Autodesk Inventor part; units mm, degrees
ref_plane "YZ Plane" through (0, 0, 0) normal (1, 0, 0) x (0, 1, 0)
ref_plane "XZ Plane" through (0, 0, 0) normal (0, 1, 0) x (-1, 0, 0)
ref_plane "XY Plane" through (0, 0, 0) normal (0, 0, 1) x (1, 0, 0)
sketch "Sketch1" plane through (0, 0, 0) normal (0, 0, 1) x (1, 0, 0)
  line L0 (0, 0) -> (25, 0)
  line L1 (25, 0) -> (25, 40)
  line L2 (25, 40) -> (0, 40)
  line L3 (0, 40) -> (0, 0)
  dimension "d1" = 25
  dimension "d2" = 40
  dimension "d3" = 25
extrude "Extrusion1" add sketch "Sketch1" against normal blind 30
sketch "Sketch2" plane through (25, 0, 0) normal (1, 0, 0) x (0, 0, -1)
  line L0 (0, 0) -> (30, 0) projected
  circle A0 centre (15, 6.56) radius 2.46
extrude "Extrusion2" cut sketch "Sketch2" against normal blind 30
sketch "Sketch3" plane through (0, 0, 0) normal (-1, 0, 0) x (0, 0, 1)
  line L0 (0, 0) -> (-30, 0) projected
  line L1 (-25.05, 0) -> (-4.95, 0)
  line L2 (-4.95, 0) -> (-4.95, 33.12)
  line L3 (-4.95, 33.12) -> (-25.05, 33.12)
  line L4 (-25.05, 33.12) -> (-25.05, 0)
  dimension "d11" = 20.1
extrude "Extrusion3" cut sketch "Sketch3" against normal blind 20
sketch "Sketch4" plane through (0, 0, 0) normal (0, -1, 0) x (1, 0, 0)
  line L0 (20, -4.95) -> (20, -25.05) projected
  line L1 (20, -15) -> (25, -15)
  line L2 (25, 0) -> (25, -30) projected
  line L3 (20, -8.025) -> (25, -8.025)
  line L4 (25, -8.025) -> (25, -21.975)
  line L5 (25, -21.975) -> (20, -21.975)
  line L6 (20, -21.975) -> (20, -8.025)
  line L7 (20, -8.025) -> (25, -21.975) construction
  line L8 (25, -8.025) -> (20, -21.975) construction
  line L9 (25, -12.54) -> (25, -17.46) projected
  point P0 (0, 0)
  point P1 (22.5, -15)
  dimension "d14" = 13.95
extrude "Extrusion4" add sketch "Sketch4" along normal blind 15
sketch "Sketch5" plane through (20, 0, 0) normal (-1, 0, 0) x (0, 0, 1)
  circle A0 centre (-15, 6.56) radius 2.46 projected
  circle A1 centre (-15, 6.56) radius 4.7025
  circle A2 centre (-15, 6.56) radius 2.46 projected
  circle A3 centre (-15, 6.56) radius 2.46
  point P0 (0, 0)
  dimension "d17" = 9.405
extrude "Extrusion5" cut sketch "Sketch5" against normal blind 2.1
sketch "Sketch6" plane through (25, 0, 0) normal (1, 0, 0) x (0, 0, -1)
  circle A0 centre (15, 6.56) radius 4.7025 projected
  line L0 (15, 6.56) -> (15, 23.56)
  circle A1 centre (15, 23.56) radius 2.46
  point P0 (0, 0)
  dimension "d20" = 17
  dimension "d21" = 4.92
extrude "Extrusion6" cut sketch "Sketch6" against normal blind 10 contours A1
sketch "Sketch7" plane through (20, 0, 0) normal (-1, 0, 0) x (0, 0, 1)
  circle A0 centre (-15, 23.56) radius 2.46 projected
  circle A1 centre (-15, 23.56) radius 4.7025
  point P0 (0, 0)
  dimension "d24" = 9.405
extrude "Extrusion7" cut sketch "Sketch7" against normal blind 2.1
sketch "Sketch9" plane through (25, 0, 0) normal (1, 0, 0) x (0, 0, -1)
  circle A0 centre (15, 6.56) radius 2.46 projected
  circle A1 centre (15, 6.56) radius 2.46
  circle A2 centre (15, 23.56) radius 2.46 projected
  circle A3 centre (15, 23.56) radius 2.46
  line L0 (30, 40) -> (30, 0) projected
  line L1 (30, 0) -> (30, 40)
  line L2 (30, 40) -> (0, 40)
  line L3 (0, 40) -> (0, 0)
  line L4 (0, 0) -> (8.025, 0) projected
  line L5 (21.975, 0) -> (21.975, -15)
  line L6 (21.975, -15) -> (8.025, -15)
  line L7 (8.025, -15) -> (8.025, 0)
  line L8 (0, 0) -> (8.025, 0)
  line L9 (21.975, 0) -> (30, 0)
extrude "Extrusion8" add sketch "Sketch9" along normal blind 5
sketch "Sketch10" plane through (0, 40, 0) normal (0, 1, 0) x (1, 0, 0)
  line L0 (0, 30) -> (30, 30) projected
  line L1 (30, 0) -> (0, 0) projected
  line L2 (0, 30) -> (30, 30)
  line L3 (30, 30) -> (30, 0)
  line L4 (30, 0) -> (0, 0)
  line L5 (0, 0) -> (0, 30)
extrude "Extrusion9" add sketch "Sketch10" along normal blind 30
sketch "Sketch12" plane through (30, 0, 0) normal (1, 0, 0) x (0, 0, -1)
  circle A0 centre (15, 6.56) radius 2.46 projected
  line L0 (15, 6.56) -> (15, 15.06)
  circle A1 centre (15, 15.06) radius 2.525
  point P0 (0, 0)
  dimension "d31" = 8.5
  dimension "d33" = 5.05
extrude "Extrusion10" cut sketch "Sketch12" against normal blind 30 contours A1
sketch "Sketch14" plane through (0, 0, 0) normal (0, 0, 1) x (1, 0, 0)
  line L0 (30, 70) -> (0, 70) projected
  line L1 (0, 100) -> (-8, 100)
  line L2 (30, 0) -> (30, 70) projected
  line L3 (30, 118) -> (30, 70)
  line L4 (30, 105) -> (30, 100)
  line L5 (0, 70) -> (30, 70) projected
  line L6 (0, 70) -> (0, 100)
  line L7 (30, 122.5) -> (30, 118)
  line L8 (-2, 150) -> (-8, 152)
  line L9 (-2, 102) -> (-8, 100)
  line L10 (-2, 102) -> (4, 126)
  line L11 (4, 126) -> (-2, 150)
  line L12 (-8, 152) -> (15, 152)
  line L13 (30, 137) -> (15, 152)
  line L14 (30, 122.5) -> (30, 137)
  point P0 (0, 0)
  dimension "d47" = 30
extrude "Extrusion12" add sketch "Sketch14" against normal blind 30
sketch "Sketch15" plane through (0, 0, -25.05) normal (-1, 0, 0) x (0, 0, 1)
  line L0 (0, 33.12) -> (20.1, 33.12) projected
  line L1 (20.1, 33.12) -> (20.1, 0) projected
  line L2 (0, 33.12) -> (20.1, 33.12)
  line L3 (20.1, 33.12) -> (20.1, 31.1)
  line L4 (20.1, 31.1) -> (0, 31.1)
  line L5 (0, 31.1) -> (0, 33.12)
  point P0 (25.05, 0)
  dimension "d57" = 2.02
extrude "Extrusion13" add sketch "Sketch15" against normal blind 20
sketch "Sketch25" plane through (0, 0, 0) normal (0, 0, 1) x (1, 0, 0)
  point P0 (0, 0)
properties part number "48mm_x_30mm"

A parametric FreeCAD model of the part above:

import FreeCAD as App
import Part
import Sketcher
from FreeCAD import Vector
Q = App.Units.Quantity


def add_polygon(sketch, points):
    """Adds a closed chain of lines whose ends are joined by coincident constraints."""
    first, n = sketch.GeometryCount, len(points)
    for a, b in zip(points, points[1:] + points[:1]):
        sketch.addGeometry(Part.LineSegment(App.Vector(*a, 0), App.Vector(*b, 0)), False)
    for i in range(n):
        sketch.addConstraint(Sketcher.Constraint("Coincident", first + i, 2, first + (i + 1) % n, 1))

doc = App.newDocument("Part")
params = doc.addObject("Spreadsheet::Sheet", "Params")
for row, (alias, value) in enumerate([
    ("sketch1_width", "25 mm"),
    ("sketch1_height", "40 mm"),
    ("pad1_length", "30 mm"),
    ("sketch2_diameter", "4.92 mm"),
    ("pocket1_length", "30 mm"),
    ("sketch3_height", "20.1 mm"),
    ("sketch3_width", "33.12 mm"),
    ("pocket2_length", "20 mm"),
    ("sketch4_height", "13.95 mm"),
    ("sketch4_width", "5 mm"),
    ("pad2_length", "15 mm"),
    ("sketch5_diameter", "4.92 mm"),
    ("pocket3_length", "2.1 mm"),
    ("sketch6_diameter", "4.92 mm"),
    ("pocket4_length", "10 mm"),
    ("sketch7_diameter", "4.92 mm"),
    ("pocket5_length", "2.1 mm"),
    ("sketch8_diameter", "4.92 mm"),
    ("sketch8_width", "40 mm"),
    ("sketch8_width2", "15 mm"),
    ("sketch8_height", "30 mm"),
    ("sketch8_height2", "13.95 mm"),
    ("pad3_length", "5 mm"),
    ("sketch9_width", "30 mm"),
    ("pad4_length", "30 mm"),
    ("sketch10_diameter", "5.05 mm"),
    ("pocket6_length", "30 mm"),
    ("sketch11_width", "30 mm"),
    ("sketch11_width2", "23 mm"),
    ("sketch11_width3", "8 mm"),
    ("sketch11_height", "67 mm"),
    ("pad5_length", "30 mm"),
    ("sketch12_width", "2.02 mm"),
    ("sketch12_height", "20.1 mm"),
    ("pad6_length", "20 mm"),
], start=1):
    params.set(f"A{row}", alias)
    params.set(f"B{row}", "=" + value)
    params.setAlias(f"B{row}", alias)

body = doc.addObject("PartDesign::Body", "Body")

sketch1 = body.newObject("Sketcher::SketchObject", "Sketch")
sketch1.AttachmentSupport = (doc.getObject("XY_Plane"), [""])
sketch1.MapMode = "FlatFace"
add_polygon(sketch1, [(0, 40), (0, 0), (25, 0), (25, 40)])
sketch1.addConstraint([
    Sketcher.Constraint("Vertical", 0),
    Sketcher.Constraint("Horizontal", 1),
    Sketcher.Constraint("Vertical", 2),
    Sketcher.Constraint("Horizontal", 3),
    Sketcher.Constraint("Coincident", 0, 2, -1, 1),
    Sketcher.Constraint("DistanceX", 1, 1, 1, 2, 25.0),
    Sketcher.Constraint("DistanceY", 0, 2, 0, 1, 40.0),
])
sketch1.setExpression("Constraints[9]", "Params.sketch1_width")
sketch1.setExpression("Constraints[10]", "Params.sketch1_height")
pad1 = body.newObject("PartDesign::Pad", "Pad")
pad1.Profile = sketch1
pad1.setExpression("Length", "Params.pad1_length")
pad1.Reversed = True

sketch2 = body.newObject("Sketcher::SketchObject", "Sketch001")
sketch2.AttachmentSupport = (doc.getObject("YZ_Plane"), [""])
sketch2.MapMode = "FlatFace"
sketch2.AttachmentOffset = App.Placement(Vector(0, 0, 25), App.Rotation())
sketch2.addGeometry(Part.Circle(Vector(6.56, -15, 0), Vector(0, 0, 1), 2.46), False)
sketch2.addConstraint([
    Sketcher.Constraint("Diameter", 0, 4.92),
    Sketcher.Constraint("DistanceY", 0, 3, -1, 1, 15.0),
    Sketcher.Constraint("DistanceX", -1, 1, 0, 3, 6.56),
])
sketch2.setExpression("Constraints[0]", "Params.sketch2_diameter")
pocket1 = body.newObject("PartDesign::Pocket", "Pocket")
pocket1.Profile = sketch2
pocket1.setExpression("Length", "Params.pocket1_length")

sketch3 = body.newObject("Sketcher::SketchObject", "Sketch002")
sketch3.AttachmentSupport = (doc.getObject("YZ_Plane"), [""])
sketch3.MapMode = "FlatFace"
add_polygon(sketch3, [(0, -25.05), (0, -4.95), (33.12, -4.95), (33.12, -25.05)])
sketch3.addConstraint([
    Sketcher.Constraint("Vertical", 0),
    Sketcher.Constraint("Horizontal", 1),
    Sketcher.Constraint("Vertical", 2),
    Sketcher.Constraint("Horizontal", 3),
    Sketcher.Constraint("PointOnObject", 0, 2, -2),
    Sketcher.Constraint("DistanceY", 0, 1, 0, 2, 20.1),
    Sketcher.Constraint("DistanceX", 1, 1, 1, 2, 33.12),
    Sketcher.Constraint("DistanceY", 0, 2, -1, 1, 4.95),
])
sketch3.setExpression("Constraints[9]", "Params.sketch3_height")
sketch3.setExpression("Constraints[10]", "Params.sketch3_width")
pocket2 = body.newObject("PartDesign::Pocket", "Pocket001")
pocket2.Profile = sketch3
pocket2.setExpression("Length", "Params.pocket2_length")
pocket2.Reversed = True

sketch4 = body.newObject("Sketcher::SketchObject", "Sketch003")
sketch4.AttachmentSupport = (doc.getObject("XZ_Plane"), [""])
sketch4.MapMode = "FlatFace"
add_polygon(sketch4, [(25, -8.025), (20, -8.025), (20, -21.975), (25, -21.975)])
sketch4.addConstraint([
    Sketcher.Constraint("Horizontal", 0),
    Sketcher.Constraint("Vertical", 1),
    Sketcher.Constraint("Horizontal", 2),
    Sketcher.Constraint("Vertical", 3),
    Sketcher.Constraint("DistanceY", 1, 2, 1, 1, 13.95),
    Sketcher.Constraint("DistanceX", 0, 2, 0, 1, 5.0),
    Sketcher.Constraint("DistanceX", -1, 1, 0, 2, 20.0),
    Sketcher.Constraint("DistanceY", 0, 2, -1, 1, 8.025),
])
sketch4.setExpression("Constraints[8]", "Params.sketch4_height")
sketch4.setExpression("Constraints[9]", "Params.sketch4_width")
pad2 = body.newObject("PartDesign::Pad", "Pad001")
pad2.Profile = sketch4
pad2.setExpression("Length", "Params.pad2_length")

sketch5 = body.newObject("Sketcher::SketchObject", "Sketch004")
sketch5.AttachmentSupport = (doc.getObject("YZ_Plane"), [""])
sketch5.MapMode = "FlatFace"
sketch5.AttachmentOffset = App.Placement(Vector(0, 0, 20), App.Rotation())
sketch5.addGeometry([
    Part.Circle(Vector(6.56, -15, 0), Vector(0, 0, 1), 4.7025),
    Part.Circle(Vector(6.56, -15, 0), Vector(0, 0, 1), 2.46),
], False)
sketch5.addConstraint([
    Sketcher.Constraint("Coincident", 1, 3, 0, 3),
    Sketcher.Constraint("Diameter", 0, 9.405),
    Sketcher.Constraint("Diameter", 1, 4.92),
    Sketcher.Constraint("DistanceY", 0, 3, -1, 1, 15.0),
    Sketcher.Constraint("DistanceX", -1, 1, 0, 3, 6.56),
])
sketch5.setExpression("Constraints[2]", "Params.sketch5_diameter")
pocket3 = body.newObject("PartDesign::Pocket", "Pocket002")
pocket3.Profile = sketch5
pocket3.setExpression("Length", "Params.pocket3_length")
pocket3.Reversed = True

sketch6 = body.newObject("Sketcher::SketchObject", "Sketch005")
sketch6.AttachmentSupport = (doc.getObject("YZ_Plane"), [""])
sketch6.MapMode = "FlatFace"
sketch6.AttachmentOffset = App.Placement(Vector(0, 0, 25), App.Rotation())
sketch6.addGeometry(Part.Circle(Vector(23.56, -15, 0), Vector(0, 0, 1), 2.46), False)
sketch6.addConstraint([
    Sketcher.Constraint("Diameter", 0, 4.92),
    Sketcher.Constraint("DistanceY", 0, 3, -1, 1, 15.0),
    Sketcher.Constraint("DistanceX", -1, 1, 0, 3, 23.56),
])
sketch6.setExpression("Constraints[0]", "Params.sketch6_diameter")
pocket4 = body.newObject("PartDesign::Pocket", "Pocket003")
pocket4.Profile = sketch6
pocket4.setExpression("Length", "Params.pocket4_length")

sketch7 = body.newObject("Sketcher::SketchObject", "Sketch006")
sketch7.AttachmentSupport = (doc.getObject("YZ_Plane"), [""])
sketch7.MapMode = "FlatFace"
sketch7.AttachmentOffset = App.Placement(Vector(0, 0, 20), App.Rotation())
sketch7.addGeometry([
    Part.Circle(Vector(23.56, -15, 0), Vector(0, 0, 1), 4.7025),
    Part.Circle(Vector(23.56, -15, 0), Vector(0, 0, 1), 2.46),
], False)
sketch7.addConstraint([
    Sketcher.Constraint("Coincident", 1, 3, 0, 3),
    Sketcher.Constraint("Diameter", 0, 9.405),
    Sketcher.Constraint("Diameter", 1, 4.92),
    Sketcher.Constraint("DistanceY", 0, 3, -1, 1, 15.0),
    Sketcher.Constraint("DistanceX", -1, 1, 0, 3, 23.56),
])
sketch7.setExpression("Constraints[2]", "Params.sketch7_diameter")
pocket5 = body.newObject("PartDesign::Pocket", "Pocket004")
pocket5.Profile = sketch7
pocket5.setExpression("Length", "Params.pocket5_length")
pocket5.Reversed = True

sketch8 = body.newObject("Sketcher::SketchObject", "Sketch007")
sketch8.AttachmentSupport = (doc.getObject("YZ_Plane"), [""])
sketch8.MapMode = "FlatFace"
sketch8.AttachmentOffset = App.Placement(Vector(0, 0, 25), App.Rotation())
add_polygon(sketch8, [(0, -30), (40, -30), (40, 0), (0, 0), (0, -8.025), (-15, -8.025), (-15, -21.975), (0, -21.975)])
sketch8.addGeometry(Part.Circle(Vector(6.56, -15, 0), Vector(0, 0, 1), 2.46), False)
sketch8.addGeometry(Part.Circle(Vector(23.56, -15, 0), Vector(0, 0, 1), 2.46), False)
sketch8.addConstraint([
    Sketcher.Constraint("Horizontal", 0),
    Sketcher.Constraint("Vertical", 1),
    Sketcher.Constraint("Horizontal", 2),
    Sketcher.Constraint("Vertical", 3),
    Sketcher.Constraint("Horizontal", 4),
    Sketcher.Constraint("Vertical", 5),
    Sketcher.Constraint("Horizontal", 6),
    Sketcher.Constraint("Vertical", 7),
    Sketcher.Constraint("Coincident", 2, 2, -1, 1),
    Sketcher.Constraint("Equal", 8, 9),
    Sketcher.Constraint("PointOnObject", 6, 2, -2),
    Sketcher.Constraint("Horizontal", 8, 3, 9, 3),
    Sketcher.Constraint("Equal", 3, 7),
    Sketcher.Constraint("Diameter", 8, 4.92),
    Sketcher.Constraint("DistanceX", 0, 1, 0, 2, 40.0),
    Sketcher.Constraint("DistanceX", 4, 2, 4, 1, 15.0),
    Sketcher.Constraint("DistanceY", 1, 1, 1, 2, 30.0),
    Sketcher.Constraint("DistanceY", 8, 3, -1, 1, 15.0),
    Sketcher.Constraint("DistanceX", 8, 3, 9, 3, 17.0),
    Sketcher.Constraint("DistanceY", 5, 2, 5, 1, 13.95),
    Sketcher.Constraint("DistanceX", -1, 1, 8, 3, 6.56),
])
sketch8.setExpression("Constraints[21]", "Params.sketch8_diameter")
sketch8.setExpression("Constraints[22]", "Params.sketch8_width")
sketch8.setExpression("Constraints[23]", "Params.sketch8_width2")
sketch8.setExpression("Constraints[24]", "Params.sketch8_height")
sketch8.setExpression("Constraints[27]", "Params.sketch8_height2")
pad3 = body.newObject("PartDesign::Pad", "Pad002")
pad3.Profile = sketch8
pad3.setExpression("Length", "Params.pad3_length")

sketch9 = body.newObject("Sketcher::SketchObject", "Sketch008")
sketch9.AttachmentSupport = (doc.getObject("XZ_Plane"), [""])
sketch9.MapMode = "FlatFace"
sketch9.AttachmentOffset = App.Placement(Vector(0, 0, -40), App.Rotation())
add_polygon(sketch9, [(30, -30), (0, -30), (0, 0), (30, 0)])
sketch9.addConstraint([
    Sketcher.Constraint("Horizontal", 0),
    Sketcher.Constraint("Vertical", 1),
    Sketcher.Constraint("Horizontal", 2),
    Sketcher.Constraint("Vertical", 3),
    Sketcher.Constraint("Coincident", 1, 2, -1, 1),
    Sketcher.Constraint("Equal", 2, 1),
    Sketcher.Constraint("DistanceX", 0, 2, 0, 1, 30.0),
])
sketch9.setExpression("Constraints[10]", "Params.sketch9_width")
pad4 = body.newObject("PartDesign::Pad", "Pad003")
pad4.Profile = sketch9
pad4.setExpression("Length", "Params.pad4_length")
pad4.Reversed = True

sketch10 = body.newObject("Sketcher::SketchObject", "Sketch009")
sketch10.AttachmentSupport = (doc.getObject("YZ_Plane"), [""])
sketch10.MapMode = "FlatFace"
sketch10.AttachmentOffset = App.Placement(Vector(0, 0, 30), App.Rotation())
sketch10.addGeometry(Part.Circle(Vector(15.06, -15, 0), Vector(0, 0, 1), 2.525), False)
sketch10.addConstraint([
    Sketcher.Constraint("Diameter", 0, 5.05),
    Sketcher.Constraint("DistanceY", 0, 3, -1, 1, 15.0),
    Sketcher.Constraint("DistanceX", -1, 1, 0, 3, 15.06),
])
sketch10.setExpression("Constraints[0]", "Params.sketch10_diameter")
pocket6 = body.newObject("PartDesign::Pocket", "Pocket005")
pocket6.Profile = sketch10
pocket6.setExpression("Length", "Params.pocket6_length")

sketch11 = body.newObject("Sketcher::SketchObject", "Sketch010")
sketch11.AttachmentSupport = (doc.getObject("XY_Plane"), [""])
sketch11.MapMode = "FlatFace"
add_polygon(sketch11, [(0, 70), (30, 70), (30, 137), (15, 152), (-8, 152), (-2, 150), (4, 126), (-2, 102), (-8, 100), (0, 100)])
sketch11.addConstraint([
    Sketcher.Constraint("Horizontal", 0),
    Sketcher.Constraint("Vertical", 1),
    Sketcher.Constraint("Horizontal", 3),
    Sketcher.Constraint("Horizontal", 8),
    Sketcher.Constraint("Vertical", 9),
    Sketcher.Constraint("PointOnObject", 8, 2, -2),
    Sketcher.Constraint("Vertical", 4, 2, 6, 2),
    Sketcher.Constraint("Vertical", 3, 2, 7, 2),
    Sketcher.Constraint("Equal", 0, 9),
    Sketcher.Constraint("Equal", 5, 6),
    Sketcher.Constraint("Equal", 4, 7),
    Sketcher.Constraint("DistanceX", 0, 1, 0, 2, 30.0),
    Sketcher.Constraint("DistanceX", 3, 2, 3, 1, 23.0),
    Sketcher.Constraint("DistanceX", 8, 1, 8, 2, 8.0),
    Sketcher.Constraint("DistanceY", 1, 1, 1, 2, 67.0),
    Sketcher.Constraint("Angle", 2, Q("135 deg")),
    Sketcher.Constraint("DistanceY", -1, 1, 0, 2, 70.0),
    Sketcher.Constraint("DistanceX", 4, 2, -1, 1, 2.0),
    Sketcher.Constraint("DistanceY", -1, 1, 4, 2, 150.0),
    Sketcher.Constraint("DistanceX", -1, 1, 5, 2, 4.0),
])
sketch11.setExpression("Constraints[21]", "Params.sketch11_width")
sketch11.setExpression("Constraints[22]", "Params.sketch11_width2")
sketch11.setExpression("Constraints[23]", "Params.sketch11_width3")
sketch11.setExpression("Constraints[24]", "Params.sketch11_height")
pad5 = body.newObject("PartDesign::Pad", "Pad004")
pad5.Profile = sketch11
pad5.setExpression("Length", "Params.pad5_length")
pad5.Reversed = True

sketch12 = body.newObject("Sketcher::SketchObject", "Sketch011")
sketch12.AttachmentSupport = (doc.getObject("YZ_Plane"), [""])
sketch12.MapMode = "FlatFace"
add_polygon(sketch12, [(33.12, -4.95), (33.12, -25.05), (31.1, -25.05), (31.1, -4.95)])
sketch12.addConstraint([
    Sketcher.Constraint("Vertical", 0),
    Sketcher.Constraint("Horizontal", 1),
    Sketcher.Constraint("Vertical", 2),
    Sketcher.Constraint("Horizontal", 3),
    Sketcher.Constraint("DistanceX", 1, 2, 1, 1, 2.02),
    Sketcher.Constraint("DistanceY", 0, 2, 0, 1, 20.1),
    Sketcher.Constraint("DistanceX", -1, 1, 1, 2, 31.1),
    Sketcher.Constraint("DistanceY", 0, 2, -1, 1, 25.05),
])
sketch12.setExpression("Constraints[8]", "Params.sketch12_width")
sketch12.setExpression("Constraints[9]", "Params.sketch12_height")
pad6 = body.newObject("PartDesign::Pad", "Pad005")
pad6.Profile = sketch12
pad6.setExpression("Length", "Params.pad6_length")

doc.recompute()
